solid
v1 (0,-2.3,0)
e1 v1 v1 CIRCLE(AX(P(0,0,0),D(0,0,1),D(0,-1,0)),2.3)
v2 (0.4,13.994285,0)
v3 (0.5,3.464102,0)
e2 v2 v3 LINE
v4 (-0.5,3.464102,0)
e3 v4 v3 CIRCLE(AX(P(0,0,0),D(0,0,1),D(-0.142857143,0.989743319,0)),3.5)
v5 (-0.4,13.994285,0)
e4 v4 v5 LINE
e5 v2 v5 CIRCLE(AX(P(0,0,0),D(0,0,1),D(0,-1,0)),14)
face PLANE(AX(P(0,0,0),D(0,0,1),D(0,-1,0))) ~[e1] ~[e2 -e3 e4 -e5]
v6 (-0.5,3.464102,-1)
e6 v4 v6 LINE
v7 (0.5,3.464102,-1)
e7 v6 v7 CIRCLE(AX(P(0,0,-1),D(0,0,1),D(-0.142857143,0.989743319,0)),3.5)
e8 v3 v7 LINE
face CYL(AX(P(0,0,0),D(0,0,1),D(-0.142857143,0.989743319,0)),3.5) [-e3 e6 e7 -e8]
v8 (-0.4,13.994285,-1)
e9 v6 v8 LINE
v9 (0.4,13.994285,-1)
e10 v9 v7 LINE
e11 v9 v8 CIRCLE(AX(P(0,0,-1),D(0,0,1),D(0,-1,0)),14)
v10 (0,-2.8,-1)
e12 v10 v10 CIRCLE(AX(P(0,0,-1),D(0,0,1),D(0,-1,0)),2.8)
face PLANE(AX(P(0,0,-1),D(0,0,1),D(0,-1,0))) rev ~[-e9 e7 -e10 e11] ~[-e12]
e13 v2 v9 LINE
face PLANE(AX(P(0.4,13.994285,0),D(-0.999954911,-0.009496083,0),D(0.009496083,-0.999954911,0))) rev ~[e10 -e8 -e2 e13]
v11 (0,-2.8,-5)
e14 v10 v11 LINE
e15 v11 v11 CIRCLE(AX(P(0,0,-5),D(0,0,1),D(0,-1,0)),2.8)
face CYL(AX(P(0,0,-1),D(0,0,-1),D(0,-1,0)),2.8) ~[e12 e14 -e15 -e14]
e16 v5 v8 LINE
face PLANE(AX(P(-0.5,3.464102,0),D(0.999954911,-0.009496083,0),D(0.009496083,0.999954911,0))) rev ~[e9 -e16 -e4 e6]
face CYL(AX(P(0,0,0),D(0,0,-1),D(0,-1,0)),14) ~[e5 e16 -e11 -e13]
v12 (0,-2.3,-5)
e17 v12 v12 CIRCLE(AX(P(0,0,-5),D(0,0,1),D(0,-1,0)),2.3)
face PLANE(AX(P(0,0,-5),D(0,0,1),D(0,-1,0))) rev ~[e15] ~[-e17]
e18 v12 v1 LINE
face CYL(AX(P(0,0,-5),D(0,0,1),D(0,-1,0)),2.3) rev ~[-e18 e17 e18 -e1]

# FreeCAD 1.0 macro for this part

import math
import FreeCAD as App
import Part
import Sketcher
Q = App.Units.Quantity


def add_polygon(sketch, points):
    """Adds a closed chain of lines whose ends are joined by coincident constraints."""
    first, n = sketch.GeometryCount, len(points)
    for a, b in zip(points, points[1:] + points[:1]):
        sketch.addGeometry(Part.LineSegment(App.Vector(*a, 0), App.Vector(*b, 0)), False)
    for i in range(n):
        sketch.addConstraint(Sketcher.Constraint("Coincident", first + i, 2, first + (i + 1) % n, 1))

doc = App.newDocument("Part")
body = doc.addObject("PartDesign::Body", "Body")

sketch1 = doc.addObject("Sketcher::SketchObject", "Sketch")
body.addObject(sketch1)
sketch1.AttachmentSupport = (doc.YZ_Plane, [""])
sketch1.MapMode = "FlatFace"
add_polygon(sketch1, [(-14, 0), (-14, -1), (-2.8, -1), (-2.8, -5), (-2.3, -5), (-2.3, 0)])
sketch1.addConstraint(Sketcher.Constraint("Vertical", 0))
sketch1.addConstraint(Sketcher.Constraint("Horizontal", 1))
sketch1.addConstraint(Sketcher.Constraint("Vertical", 2))
sketch1.addConstraint(Sketcher.Constraint("Horizontal", 3))
sketch1.addConstraint(Sketcher.Constraint("Vertical", 4))
sketch1.addConstraint(Sketcher.Constraint("Horizontal", 5))
sketch1.addConstraint(Sketcher.Constraint("PointOnObject", 4, 2, -1))
sketch1.addConstraint(Sketcher.Constraint("DistanceY", 0, 2, 0, 1, Q("1 mm")))
sketch1.addConstraint(Sketcher.Constraint("DistanceY", 2, 2, 2, 1, Q("4 mm")))
sketch1.addConstraint(Sketcher.Constraint("DistanceX", 1, 1, 1, 2, Q("11.2 mm")))
sketch1.addConstraint(Sketcher.Constraint("DistanceX", 3, 1, 3, 2, Q("0.5 mm")))
sketch1.addConstraint(Sketcher.Constraint("DistanceX", 0, 2, -1, 1, Q("14 mm")))
revolution = doc.addObject("PartDesign::Revolution", "Revolution")
body.addObject(revolution)
revolution.Profile = sketch1
revolution.ReferenceAxis = (sketch1, ["V_Axis"])
revolution.Angle = 360

sketch2 = doc.addObject("Sketcher::SketchObject", "Sketch001")
body.addObject(sketch2)
sketch2.AttachmentSupport = (doc.XY_Plane, [""])
sketch2.MapMode = "FlatFace"
sketch2.addGeometry(Part.LineSegment(App.Vector(0.4, 13.994285, 0), App.Vector(0.5, 3.464102, 0)), False)
sketch2.addGeometry(Part.ArcOfCircle(Part.Circle(App.Vector(0, 0, 0), App.Vector(0, 0, 1), 3.5), math.radians(98.213211), math.radians(441.786789)), False)
sketch2.addGeometry(Part.LineSegment(App.Vector(-0.5, 3.464102, 0), App.Vector(-0.4, 13.994285, 0)), False)
sketch2.addGeometry(Part.ArcOfCircle(Part.Circle(App.Vector(0, 0, 0), App.Vector(0, 0, 1), 14), math.radians(91.637245), math.radians(448.362755)), False)
sketch2.addConstraint(Sketcher.Constraint("Coincident", 0, 2, 1, 2))
sketch2.addConstraint(Sketcher.Constraint("Coincident", 1, 1, 2, 1))
sketch2.addConstraint(Sketcher.Constraint("Coincident", 2, 2, 3, 1))
sketch2.addConstraint(Sketcher.Constraint("Coincident", 3, 2, 0, 1))
sketch2.addConstraint(Sketcher.Constraint("Coincident", 1, 3, -1, 1))
sketch2.addConstraint(Sketcher.Constraint("Coincident", 3, 3, -1, 1))
sketch2.addConstraint(Sketcher.Constraint("Horizontal", 0, 2, 1, 1))
sketch2.addConstraint(Sketcher.Constraint("Horizontal", 2, 2, 3, 2))
sketch2.addConstraint(Sketcher.Constraint("Radius", 3, Q("14 mm")))
sketch2.addConstraint(Sketcher.Constraint("Radius", 1, Q("3.5 mm")))
sketch2.addConstraint(Sketcher.Constraint("DistanceX", 1, 1, 0, 2, Q("1 mm")))
sketch2.addConstraint(Sketcher.Constraint("DistanceX", 2, 2, -1, 1, Q("0.4 mm")))
pocket1 = doc.addObject("PartDesign::Pocket", "Pocket")
body.addObject(pocket1)
pocket1.Profile = sketch2
pocket1.Type = "ThroughAll"

doc.recompute()
